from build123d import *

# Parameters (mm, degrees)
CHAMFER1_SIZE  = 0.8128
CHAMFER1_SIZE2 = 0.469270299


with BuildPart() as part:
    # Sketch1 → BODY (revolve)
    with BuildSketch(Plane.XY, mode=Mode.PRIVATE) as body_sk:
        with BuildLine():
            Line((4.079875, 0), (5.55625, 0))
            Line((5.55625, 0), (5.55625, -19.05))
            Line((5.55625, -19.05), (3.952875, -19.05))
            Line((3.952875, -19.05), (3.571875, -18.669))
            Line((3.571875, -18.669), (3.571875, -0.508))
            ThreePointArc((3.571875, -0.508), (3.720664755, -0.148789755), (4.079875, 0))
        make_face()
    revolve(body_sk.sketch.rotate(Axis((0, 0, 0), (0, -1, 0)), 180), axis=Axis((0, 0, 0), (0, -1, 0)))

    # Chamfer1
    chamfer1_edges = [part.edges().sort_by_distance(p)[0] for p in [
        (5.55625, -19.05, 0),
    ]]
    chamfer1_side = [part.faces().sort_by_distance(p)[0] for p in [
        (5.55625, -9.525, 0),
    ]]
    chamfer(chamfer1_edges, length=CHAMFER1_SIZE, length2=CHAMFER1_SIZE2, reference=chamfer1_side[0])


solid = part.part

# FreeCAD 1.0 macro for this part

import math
import FreeCAD as App
import Part
import Sketcher
from FreeCAD import Vector
Q = App.Units.Quantity


def edges_at(feature, points):
    """Names of the edges that pass closest to the given points."""
    edges = feature.Shape.Edges
    near = lambda p: min(range(len(edges)), key=lambda i: edges[i].distToShape(Part.Vertex(*p))[0])
    return sorted({f"Edge{near(p) + 1}" for p in points})

doc = App.newDocument("Part")
body = doc.addObject("PartDesign::Body", "Body")

# Sketch on XY plane
sketch1 = body.newObject("Sketcher::SketchObject", "Sketch")
sketch1.AttachmentSupport = (doc.getObject("XY_Plane"), [""])
sketch1.MapMode = "FlatFace"
sketch1.addGeometry([
    Part.LineSegment(Vector(5.6, 0, 0), Vector(4.1, 0, 0)),  # 0
    Part.ArcOfCircle(Part.Circle(Vector(4.1, -0.5, 0), Vector(0, 0, 1), 0.5), math.radians(90), math.radians(180)),  # 1
    Part.LineSegment(Vector(3.6, -0.5, 0), Vector(3.6, -18.7, 0)),  # 2
    Part.LineSegment(Vector(3.6, -18.7, 0), Vector(4, -19.1, 0)),  # 3
    Part.LineSegment(Vector(4, -19.1, 0), Vector(5.6, -19.1, 0)),  # 4
    Part.LineSegment(Vector(5.6, -19.1, 0), Vector(5.6, 0, 0)),  # 5
], False)
sketch1.addConstraint([
    Sketcher.Constraint("Tangent", 0, 2, 1, 1),
    Sketcher.Constraint("Tangent", 1, 2, 2, 1),
    Sketcher.Constraint("Coincident", 2, 2, 3, 1),
    Sketcher.Constraint("Coincident", 3, 2, 4, 1),
    Sketcher.Constraint("Coincident", 4, 2, 5, 1),
    Sketcher.Constraint("Coincident", 5, 2, 0, 1),
    Sketcher.Constraint("Horizontal", 0),
    Sketcher.Constraint("Vertical", 2),
    Sketcher.Constraint("Horizontal", 4),
    Sketcher.Constraint("Vertical", 5),
    Sketcher.Constraint("PointOnObject", 0, 2, -1),
    Sketcher.Constraint("Radius", 1, Q("0.02 in")),
    Sketcher.Constraint("Angle", 3, Q("-45 deg")),
    Sketcher.Constraint("DistanceY", 5, 1, 5, 2, Q("0.75 in")),
    Sketcher.Constraint("DistanceY", 2, 2, 2, 1, Q("0.715 in")),
    Sketcher.Constraint("DistanceX", -1, 1, 1, 2, Q("0.140625 in")),
    Sketcher.Constraint("DistanceX", -1, 1, 4, 2, Q("0.21875 in")),
])
revolution = body.newObject("PartDesign::Revolution", "Revolution")
revolution.Profile = sketch1
revolution.ReferenceAxis = (sketch1, ["V_Axis"])
revolution.Angle = 360
doc.recompute()

chamfer = body.newObject("PartDesign::Chamfer", "Chamfer")
chamfer.Base = (revolution, edges_at(revolution, [(5.556, -19.05, 0)]))
chamfer.ChamferType = "Two distances"
chamfer.Size = Q("0.032 in")
chamfer.Size2 = 0.46927
chamfer.FlipDirection = True

doc.recompute()
